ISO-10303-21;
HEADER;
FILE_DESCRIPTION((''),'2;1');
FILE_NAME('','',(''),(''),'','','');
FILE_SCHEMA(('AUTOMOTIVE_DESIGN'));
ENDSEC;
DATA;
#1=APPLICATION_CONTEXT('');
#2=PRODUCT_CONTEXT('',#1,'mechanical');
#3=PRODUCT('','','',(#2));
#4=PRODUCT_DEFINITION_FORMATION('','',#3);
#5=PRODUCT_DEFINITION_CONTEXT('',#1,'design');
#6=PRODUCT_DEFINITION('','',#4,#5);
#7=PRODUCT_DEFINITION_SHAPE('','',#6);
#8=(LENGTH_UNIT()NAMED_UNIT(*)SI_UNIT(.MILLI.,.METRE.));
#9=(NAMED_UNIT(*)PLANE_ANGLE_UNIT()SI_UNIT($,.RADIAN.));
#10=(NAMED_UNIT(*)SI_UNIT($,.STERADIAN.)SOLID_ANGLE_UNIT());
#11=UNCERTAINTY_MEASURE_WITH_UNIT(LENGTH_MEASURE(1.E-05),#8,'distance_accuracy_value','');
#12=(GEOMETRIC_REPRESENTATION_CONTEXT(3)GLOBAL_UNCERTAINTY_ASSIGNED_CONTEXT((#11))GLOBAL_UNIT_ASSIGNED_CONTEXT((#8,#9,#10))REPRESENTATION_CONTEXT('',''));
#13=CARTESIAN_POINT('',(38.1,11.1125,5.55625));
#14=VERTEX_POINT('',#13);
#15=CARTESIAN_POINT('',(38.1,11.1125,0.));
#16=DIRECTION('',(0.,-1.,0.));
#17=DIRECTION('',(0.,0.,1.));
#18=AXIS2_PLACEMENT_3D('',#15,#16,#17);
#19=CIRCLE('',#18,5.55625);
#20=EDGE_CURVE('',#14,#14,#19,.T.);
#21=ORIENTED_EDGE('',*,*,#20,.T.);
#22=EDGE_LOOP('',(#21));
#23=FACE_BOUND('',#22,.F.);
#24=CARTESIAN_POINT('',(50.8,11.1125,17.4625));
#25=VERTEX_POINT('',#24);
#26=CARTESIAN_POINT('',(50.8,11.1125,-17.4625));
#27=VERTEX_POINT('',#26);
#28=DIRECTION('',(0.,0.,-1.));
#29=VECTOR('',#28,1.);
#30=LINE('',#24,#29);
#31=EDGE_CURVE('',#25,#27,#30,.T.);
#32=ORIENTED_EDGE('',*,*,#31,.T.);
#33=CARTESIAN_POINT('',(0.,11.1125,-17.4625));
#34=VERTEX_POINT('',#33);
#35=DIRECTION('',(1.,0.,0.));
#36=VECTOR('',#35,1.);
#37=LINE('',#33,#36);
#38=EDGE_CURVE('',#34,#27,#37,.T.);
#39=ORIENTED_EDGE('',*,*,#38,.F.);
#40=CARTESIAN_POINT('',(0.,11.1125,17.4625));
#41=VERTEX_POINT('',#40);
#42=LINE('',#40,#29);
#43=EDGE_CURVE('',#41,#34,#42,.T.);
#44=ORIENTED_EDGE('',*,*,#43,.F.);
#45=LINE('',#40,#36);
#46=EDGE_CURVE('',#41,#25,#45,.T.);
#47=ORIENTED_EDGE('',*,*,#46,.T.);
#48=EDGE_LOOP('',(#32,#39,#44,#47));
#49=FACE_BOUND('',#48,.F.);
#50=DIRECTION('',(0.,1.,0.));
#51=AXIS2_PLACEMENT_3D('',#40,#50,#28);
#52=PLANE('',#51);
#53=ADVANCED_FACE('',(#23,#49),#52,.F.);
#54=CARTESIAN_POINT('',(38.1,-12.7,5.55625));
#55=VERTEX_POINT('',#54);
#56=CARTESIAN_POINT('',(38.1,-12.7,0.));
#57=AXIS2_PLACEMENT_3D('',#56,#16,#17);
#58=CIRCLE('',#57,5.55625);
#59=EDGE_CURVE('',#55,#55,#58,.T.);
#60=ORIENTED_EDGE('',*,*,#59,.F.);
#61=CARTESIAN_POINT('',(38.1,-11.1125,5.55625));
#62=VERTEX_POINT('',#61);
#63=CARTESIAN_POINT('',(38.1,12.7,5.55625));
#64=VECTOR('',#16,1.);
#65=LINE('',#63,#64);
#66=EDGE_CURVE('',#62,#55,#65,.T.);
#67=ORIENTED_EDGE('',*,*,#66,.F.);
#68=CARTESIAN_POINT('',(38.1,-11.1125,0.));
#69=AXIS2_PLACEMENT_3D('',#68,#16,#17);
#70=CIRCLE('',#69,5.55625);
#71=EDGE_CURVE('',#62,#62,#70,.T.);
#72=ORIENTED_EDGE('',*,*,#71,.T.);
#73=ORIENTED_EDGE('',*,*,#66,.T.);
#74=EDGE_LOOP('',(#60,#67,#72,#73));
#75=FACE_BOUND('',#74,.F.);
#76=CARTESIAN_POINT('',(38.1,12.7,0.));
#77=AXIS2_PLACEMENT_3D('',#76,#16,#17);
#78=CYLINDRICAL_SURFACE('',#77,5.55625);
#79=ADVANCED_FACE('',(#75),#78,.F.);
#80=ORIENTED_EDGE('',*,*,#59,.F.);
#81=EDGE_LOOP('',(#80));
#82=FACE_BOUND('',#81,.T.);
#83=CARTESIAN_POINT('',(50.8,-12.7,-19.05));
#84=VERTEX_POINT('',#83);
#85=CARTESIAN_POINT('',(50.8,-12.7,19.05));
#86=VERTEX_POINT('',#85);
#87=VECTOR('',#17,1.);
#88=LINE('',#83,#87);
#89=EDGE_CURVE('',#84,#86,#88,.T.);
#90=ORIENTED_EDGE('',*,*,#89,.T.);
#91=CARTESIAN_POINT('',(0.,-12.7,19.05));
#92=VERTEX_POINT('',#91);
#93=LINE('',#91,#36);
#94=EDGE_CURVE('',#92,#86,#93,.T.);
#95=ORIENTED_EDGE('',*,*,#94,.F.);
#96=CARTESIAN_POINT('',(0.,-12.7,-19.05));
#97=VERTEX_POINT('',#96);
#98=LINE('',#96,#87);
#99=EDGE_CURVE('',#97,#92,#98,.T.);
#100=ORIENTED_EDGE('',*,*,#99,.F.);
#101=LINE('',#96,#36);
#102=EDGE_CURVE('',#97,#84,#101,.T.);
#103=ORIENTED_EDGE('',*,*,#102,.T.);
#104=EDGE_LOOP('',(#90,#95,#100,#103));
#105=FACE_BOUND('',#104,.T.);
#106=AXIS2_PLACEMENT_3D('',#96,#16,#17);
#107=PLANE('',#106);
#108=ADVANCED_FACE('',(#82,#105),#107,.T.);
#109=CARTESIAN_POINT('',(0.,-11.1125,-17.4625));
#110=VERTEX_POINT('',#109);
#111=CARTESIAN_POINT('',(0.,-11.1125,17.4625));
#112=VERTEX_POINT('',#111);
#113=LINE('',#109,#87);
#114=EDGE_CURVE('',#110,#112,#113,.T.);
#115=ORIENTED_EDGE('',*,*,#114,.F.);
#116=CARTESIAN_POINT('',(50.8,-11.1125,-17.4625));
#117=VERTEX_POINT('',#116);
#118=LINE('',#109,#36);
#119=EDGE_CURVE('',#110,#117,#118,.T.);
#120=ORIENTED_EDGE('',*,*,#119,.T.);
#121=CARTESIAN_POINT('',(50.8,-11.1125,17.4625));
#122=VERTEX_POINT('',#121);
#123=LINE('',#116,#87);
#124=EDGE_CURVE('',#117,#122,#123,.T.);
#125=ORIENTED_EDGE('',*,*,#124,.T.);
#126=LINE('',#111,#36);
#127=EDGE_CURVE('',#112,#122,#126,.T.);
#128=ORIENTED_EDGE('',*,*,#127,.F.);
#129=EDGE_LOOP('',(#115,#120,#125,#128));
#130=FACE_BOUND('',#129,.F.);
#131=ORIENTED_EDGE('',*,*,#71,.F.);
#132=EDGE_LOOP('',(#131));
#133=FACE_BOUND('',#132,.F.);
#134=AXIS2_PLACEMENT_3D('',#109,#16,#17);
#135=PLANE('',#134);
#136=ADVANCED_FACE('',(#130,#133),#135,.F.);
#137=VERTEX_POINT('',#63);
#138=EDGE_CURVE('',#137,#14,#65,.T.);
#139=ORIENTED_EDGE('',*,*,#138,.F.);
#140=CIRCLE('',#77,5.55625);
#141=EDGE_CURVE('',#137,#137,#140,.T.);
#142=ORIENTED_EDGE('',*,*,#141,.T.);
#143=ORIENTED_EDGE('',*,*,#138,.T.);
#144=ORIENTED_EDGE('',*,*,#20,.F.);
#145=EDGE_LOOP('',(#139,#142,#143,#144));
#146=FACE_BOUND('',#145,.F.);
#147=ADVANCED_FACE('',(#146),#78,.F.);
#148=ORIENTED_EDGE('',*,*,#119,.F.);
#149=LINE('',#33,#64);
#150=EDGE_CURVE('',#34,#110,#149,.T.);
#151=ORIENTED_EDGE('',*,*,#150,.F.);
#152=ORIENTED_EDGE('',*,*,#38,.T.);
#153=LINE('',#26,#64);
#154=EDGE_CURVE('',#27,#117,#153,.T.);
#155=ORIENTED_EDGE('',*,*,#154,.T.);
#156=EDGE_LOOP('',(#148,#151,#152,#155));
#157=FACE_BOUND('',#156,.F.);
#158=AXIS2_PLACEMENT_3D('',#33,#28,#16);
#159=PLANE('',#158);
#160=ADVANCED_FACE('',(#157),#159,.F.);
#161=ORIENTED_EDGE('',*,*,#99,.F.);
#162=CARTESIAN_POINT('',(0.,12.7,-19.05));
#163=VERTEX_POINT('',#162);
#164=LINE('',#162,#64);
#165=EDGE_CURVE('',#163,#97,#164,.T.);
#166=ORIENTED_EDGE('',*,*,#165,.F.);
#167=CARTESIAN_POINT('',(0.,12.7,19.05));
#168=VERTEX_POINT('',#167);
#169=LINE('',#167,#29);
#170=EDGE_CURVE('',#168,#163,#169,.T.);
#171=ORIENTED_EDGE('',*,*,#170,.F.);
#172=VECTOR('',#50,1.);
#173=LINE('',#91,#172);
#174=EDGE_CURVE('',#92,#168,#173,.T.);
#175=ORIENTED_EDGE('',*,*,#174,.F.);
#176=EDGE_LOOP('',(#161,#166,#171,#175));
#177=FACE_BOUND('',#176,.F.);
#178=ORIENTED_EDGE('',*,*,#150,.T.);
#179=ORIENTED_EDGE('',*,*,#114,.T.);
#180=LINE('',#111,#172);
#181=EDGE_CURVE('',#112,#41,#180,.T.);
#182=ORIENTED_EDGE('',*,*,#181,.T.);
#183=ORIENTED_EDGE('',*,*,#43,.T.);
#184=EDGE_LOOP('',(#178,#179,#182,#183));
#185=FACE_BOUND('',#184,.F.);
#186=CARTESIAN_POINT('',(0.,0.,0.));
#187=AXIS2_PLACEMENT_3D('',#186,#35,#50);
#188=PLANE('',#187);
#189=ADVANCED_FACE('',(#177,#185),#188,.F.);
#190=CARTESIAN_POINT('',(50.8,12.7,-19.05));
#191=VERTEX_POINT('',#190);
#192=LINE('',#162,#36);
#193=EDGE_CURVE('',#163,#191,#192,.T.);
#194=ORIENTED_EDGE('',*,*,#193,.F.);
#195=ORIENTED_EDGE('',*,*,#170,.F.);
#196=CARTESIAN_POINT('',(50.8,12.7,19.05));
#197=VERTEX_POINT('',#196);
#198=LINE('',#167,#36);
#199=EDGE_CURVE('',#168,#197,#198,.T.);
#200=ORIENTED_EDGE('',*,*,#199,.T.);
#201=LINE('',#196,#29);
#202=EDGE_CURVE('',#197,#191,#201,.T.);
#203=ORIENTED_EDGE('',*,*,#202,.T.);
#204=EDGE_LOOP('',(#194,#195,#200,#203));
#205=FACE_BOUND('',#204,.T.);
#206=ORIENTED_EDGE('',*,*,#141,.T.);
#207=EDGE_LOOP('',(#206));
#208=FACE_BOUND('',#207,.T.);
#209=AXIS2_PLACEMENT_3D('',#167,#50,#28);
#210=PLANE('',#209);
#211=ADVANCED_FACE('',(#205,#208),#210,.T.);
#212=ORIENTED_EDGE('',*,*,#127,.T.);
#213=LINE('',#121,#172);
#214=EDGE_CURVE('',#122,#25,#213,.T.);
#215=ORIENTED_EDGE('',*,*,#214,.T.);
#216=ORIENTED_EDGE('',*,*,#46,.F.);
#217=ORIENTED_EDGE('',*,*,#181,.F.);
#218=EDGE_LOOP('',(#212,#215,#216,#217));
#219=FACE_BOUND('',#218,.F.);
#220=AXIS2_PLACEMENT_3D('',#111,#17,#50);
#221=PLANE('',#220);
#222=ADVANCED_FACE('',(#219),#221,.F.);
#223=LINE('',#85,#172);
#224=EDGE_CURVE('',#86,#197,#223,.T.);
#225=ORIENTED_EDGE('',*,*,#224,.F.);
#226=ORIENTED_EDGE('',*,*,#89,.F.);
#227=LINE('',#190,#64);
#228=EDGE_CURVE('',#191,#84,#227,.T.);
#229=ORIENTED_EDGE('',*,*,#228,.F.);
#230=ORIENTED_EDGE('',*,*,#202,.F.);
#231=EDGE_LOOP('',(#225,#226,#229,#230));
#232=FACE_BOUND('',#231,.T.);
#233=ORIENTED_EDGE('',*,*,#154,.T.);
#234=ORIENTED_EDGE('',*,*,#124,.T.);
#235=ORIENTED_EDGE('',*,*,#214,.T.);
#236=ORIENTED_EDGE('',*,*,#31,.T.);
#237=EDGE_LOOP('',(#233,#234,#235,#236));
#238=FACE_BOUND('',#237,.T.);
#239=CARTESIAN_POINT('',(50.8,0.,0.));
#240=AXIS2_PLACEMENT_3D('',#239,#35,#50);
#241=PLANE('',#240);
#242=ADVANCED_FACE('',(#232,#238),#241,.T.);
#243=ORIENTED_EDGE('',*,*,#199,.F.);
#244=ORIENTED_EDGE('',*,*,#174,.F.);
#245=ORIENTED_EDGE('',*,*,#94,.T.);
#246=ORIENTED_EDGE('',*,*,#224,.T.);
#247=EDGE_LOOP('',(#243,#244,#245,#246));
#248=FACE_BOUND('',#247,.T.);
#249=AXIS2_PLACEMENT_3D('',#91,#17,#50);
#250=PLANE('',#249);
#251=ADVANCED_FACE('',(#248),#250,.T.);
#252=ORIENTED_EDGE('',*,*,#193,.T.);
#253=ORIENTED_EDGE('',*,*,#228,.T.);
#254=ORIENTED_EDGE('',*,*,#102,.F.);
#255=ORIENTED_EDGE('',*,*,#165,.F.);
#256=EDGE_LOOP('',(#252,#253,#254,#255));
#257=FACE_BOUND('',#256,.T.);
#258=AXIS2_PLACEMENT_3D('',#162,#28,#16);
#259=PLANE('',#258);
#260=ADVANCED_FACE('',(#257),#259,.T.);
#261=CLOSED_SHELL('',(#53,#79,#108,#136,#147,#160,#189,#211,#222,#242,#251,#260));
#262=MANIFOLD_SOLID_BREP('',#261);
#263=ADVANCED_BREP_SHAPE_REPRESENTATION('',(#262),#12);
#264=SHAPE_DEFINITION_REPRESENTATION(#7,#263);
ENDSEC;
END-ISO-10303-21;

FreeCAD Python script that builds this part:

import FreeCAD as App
import Part
import Sketcher
Q = App.Units.Quantity

doc = App.newDocument("Part")
body = doc.addObject("PartDesign::Body", "Body")

# Sketch on YZ plane
sketch1 = body.newObject("Sketcher::SketchObject", "Sketch")
sketch1.AttachmentSupport = (doc.getObject("YZ_Plane"), [""])
sketch1.MapMode = "FlatFace"
sketch1.addGeometry(Part.LineSegment(App.Vector(13, 19, 0), App.Vector(-13, 19, 0)), False)
sketch1.addGeometry(Part.LineSegment(App.Vector(-13, 19, 0), App.Vector(-13, -19, 0)), False)
sketch1.addGeometry(Part.LineSegment(App.Vector(-13, -19, 0), App.Vector(13, -19, 0)), False)
sketch1.addGeometry(Part.LineSegment(App.Vector(13, -19, 0), App.Vector(13, 19, 0)), False)
sketch1.addGeometry(Part.LineSegment(App.Vector(-11, -17, 0), App.Vector(-11, 17, 0)), False)
sketch1.addGeometry(Part.LineSegment(App.Vector(-11, 17, 0), App.Vector(11, 17, 0)), False)
sketch1.addGeometry(Part.LineSegment(App.Vector(11, 17, 0), App.Vector(11, -17, 0)), False)
sketch1.addGeometry(Part.LineSegment(App.Vector(11, -17, 0), App.Vector(-11, -17, 0)), False)
sketch1.addConstraint(Sketcher.Constraint("Coincident", 0, 2, 1, 1))
sketch1.addConstraint(Sketcher.Constraint("Coincident", 1, 2, 2, 1))
sketch1.addConstraint(Sketcher.Constraint("Coincident", 2, 2, 3, 1))
sketch1.addConstraint(Sketcher.Constraint("Coincident", 3, 2, 0, 1))
sketch1.addConstraint(Sketcher.Constraint("Coincident", 4, 2, 5, 1))
sketch1.addConstraint(Sketcher.Constraint("Coincident", 5, 2, 6, 1))
sketch1.addConstraint(Sketcher.Constraint("Coincident", 6, 2, 7, 1))
sketch1.addConstraint(Sketcher.Constraint("Coincident", 7, 2, 4, 1))
sketch1.addConstraint(Sketcher.Constraint("Horizontal", 0))
sketch1.addConstraint(Sketcher.Constraint("Vertical", 1))
sketch1.addConstraint(Sketcher.Constraint("Horizontal", 2))
sketch1.addConstraint(Sketcher.Constraint("Vertical", 3))
sketch1.addConstraint(Sketcher.Constraint("Vertical", 4))
sketch1.addConstraint(Sketcher.Constraint("Horizontal", 5))
sketch1.addConstraint(Sketcher.Constraint("Vertical", 6))
sketch1.addConstraint(Sketcher.Constraint("Horizontal", 7))
sketch1.addConstraint(Sketcher.Constraint("Symmetric", 0, 2, 2, 2, -1, 1))
sketch1.addConstraint(Sketcher.Constraint("Symmetric", 4, 2, 6, 2, -1, 1))
sketch1.addConstraint(Sketcher.Constraint("DistanceX", 0, 2, 0, 1, Q("1 in")))
sketch1.addConstraint(Sketcher.Constraint("DistanceY", 1, 2, 1, 1, Q("1.5 in")))
sketch1.addConstraint(Sketcher.Constraint("DistanceX", 0, 2, 4, 2, Q("0.0625 in")))
sketch1.addConstraint(Sketcher.Constraint("DistanceY", 4, 2, 0, 2, Q("0.0625 in")))
pad1 = body.newObject("PartDesign::Pad", "Pad")
pad1.Profile = sketch1
pad1.Length = Q("2 in")

# Sketch on XZ plane
sketch2 = body.newObject("Sketcher::SketchObject", "Sketch001")
sketch2.AttachmentSupport = (doc.getObject("XZ_Plane"), [""])
sketch2.MapMode = "FlatFace"
sketch2.AttachmentOffset = App.Placement(App.Vector(0, 0, -0.5 * 25.4), App.Rotation())
sketch2.addGeometry(Part.Circle(App.Vector(38, 0, 0), App.Vector(0, 0, 1), 6), False)
sketch2.addConstraint(Sketcher.Constraint("PointOnObject", 0, 3, -1))
sketch2.addConstraint(Sketcher.Constraint("Diameter", 0, Q("0.4375 in")))
sketch2.addConstraint(Sketcher.Constraint("DistanceX", -1, 1, 0, 3, Q("1.5 in")))
doc.recompute()
hole = body.newObject("PartDesign::Hole", "Hole")
hole.Profile = sketch2
hole.ThreadType = "None"
hole.Diameter = Q("0.4375 in")
hole.DepthType = "ThroughAll"
hole.Reversed = True

doc.recompute()
